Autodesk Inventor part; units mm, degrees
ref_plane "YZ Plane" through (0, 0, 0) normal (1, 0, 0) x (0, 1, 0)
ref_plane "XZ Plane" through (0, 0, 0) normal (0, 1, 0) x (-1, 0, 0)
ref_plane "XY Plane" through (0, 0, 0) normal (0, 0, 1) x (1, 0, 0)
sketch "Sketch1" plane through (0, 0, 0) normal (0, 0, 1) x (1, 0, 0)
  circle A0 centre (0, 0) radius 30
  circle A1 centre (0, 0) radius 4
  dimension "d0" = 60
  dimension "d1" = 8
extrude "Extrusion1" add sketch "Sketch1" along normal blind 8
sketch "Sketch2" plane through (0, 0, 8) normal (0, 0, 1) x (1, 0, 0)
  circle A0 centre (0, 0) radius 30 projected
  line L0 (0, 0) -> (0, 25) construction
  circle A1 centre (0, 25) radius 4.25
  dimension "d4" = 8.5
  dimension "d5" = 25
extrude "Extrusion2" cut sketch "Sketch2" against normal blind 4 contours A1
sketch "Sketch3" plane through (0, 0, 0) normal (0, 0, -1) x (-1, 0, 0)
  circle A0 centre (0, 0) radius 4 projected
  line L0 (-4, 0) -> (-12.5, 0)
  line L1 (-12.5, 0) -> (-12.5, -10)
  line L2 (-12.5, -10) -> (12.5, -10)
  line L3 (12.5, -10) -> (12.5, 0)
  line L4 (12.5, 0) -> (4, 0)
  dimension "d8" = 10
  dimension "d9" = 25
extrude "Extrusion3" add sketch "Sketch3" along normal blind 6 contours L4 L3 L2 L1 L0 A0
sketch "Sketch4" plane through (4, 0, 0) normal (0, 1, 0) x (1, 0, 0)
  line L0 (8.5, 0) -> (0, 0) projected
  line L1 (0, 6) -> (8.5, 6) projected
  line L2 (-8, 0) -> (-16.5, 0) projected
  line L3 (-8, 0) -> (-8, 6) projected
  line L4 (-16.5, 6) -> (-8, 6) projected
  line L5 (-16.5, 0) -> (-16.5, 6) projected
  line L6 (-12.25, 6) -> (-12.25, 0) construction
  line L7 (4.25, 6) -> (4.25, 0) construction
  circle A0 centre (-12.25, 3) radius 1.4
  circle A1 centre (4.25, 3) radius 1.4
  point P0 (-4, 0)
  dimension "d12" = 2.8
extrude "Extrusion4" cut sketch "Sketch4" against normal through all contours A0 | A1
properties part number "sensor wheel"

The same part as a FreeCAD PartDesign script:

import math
import FreeCAD as App
import Part
import Sketcher
Q = App.Units.Quantity

doc = App.newDocument("Part")
body = doc.addObject("PartDesign::Body", "Body")

# Sketch on XY plane
sketch1 = doc.addObject("Sketcher::SketchObject", "Sketch")
body.addObject(sketch1)
sketch1.AttachmentSupport = (doc.XY_Plane, [""])
sketch1.MapMode = "FlatFace"
sketch1.addGeometry([
    Part.Circle(App.Vector(0, 0, 0), App.Vector(0, 0, 1), 30),
    Part.Circle(App.Vector(0, 0, 0), App.Vector(0, 0, 1), 4),
], False)
sketch1.addConstraint([
    Sketcher.Constraint("Coincident", 0, 3, -1, 1),
    Sketcher.Constraint("Coincident", 1, 3, -1, 1),
    Sketcher.Constraint("Diameter", 0, Q("60 mm")),
    Sketcher.Constraint("Diameter", 1, Q("8 mm")),
])
pad1 = doc.addObject("PartDesign::Pad", "Pad")
body.addObject(pad1)
pad1.Profile = sketch1
pad1.Length = 8

# Sketch on XY plane
sketch2 = doc.addObject("Sketcher::SketchObject", "Sketch001")
body.addObject(sketch2)
sketch2.AttachmentSupport = (doc.XY_Plane, [""])
sketch2.MapMode = "FlatFace"
sketch2.AttachmentOffset = App.Placement(App.Vector(0, 0, 8), App.Rotation())
sketch2.addGeometry(Part.Circle(App.Vector(0, 25, 0), App.Vector(0, 0, 1), 4.2), False)
sketch2.addConstraint([
    Sketcher.Constraint("PointOnObject", 0, 3, -2),
    Sketcher.Constraint("Diameter", 0, Q("8.5 mm")),
    Sketcher.Constraint("DistanceY", -1, 1, 0, 3, Q("25 mm")),
])
pocket1 = doc.addObject("PartDesign::Pocket", "Pocket")
body.addObject(pocket1)
pocket1.Profile = sketch2
pocket1.Length = 4

# Sketch on XY plane
sketch3 = doc.addObject("Sketcher::SketchObject", "Sketch002")
body.addObject(sketch3)
sketch3.AttachmentSupport = (doc.XY_Plane, [""])
sketch3.MapMode = "FlatFace"
sketch3.addGeometry([
    Part.LineSegment(App.Vector(-12.5, 0, 0), App.Vector(-4, 0, 0)),  # 0
    Part.ArcOfCircle(Part.Circle(App.Vector(0, 0, 0), App.Vector(0, 0, 1), 4), math.radians(180), math.radians(360)),  # 1
    Part.LineSegment(App.Vector(4, 0, 0), App.Vector(12.5, 0, 0)),  # 2
    Part.LineSegment(App.Vector(12.5, 0, 0), App.Vector(12.5, -10, 0)),  # 3
    Part.LineSegment(App.Vector(12.5, -10, 0), App.Vector(-12.5, -10, 0)),  # 4
    Part.LineSegment(App.Vector(-12.5, -10, 0), App.Vector(-12.5, 0, 0)),  # 5
], False)
sketch3.addConstraint([
    Sketcher.Constraint("Coincident", 0, 2, 1, 1),
    Sketcher.Constraint("Coincident", 1, 2, 2, 1),
    Sketcher.Constraint("Coincident", 2, 2, 3, 1),
    Sketcher.Constraint("Coincident", 3, 2, 4, 1),
    Sketcher.Constraint("Coincident", 4, 2, 5, 1),
    Sketcher.Constraint("Coincident", 5, 2, 0, 1),
    Sketcher.Constraint("Horizontal", 0),
    Sketcher.Constraint("Horizontal", 2),
    Sketcher.Constraint("Vertical", 3),
    Sketcher.Constraint("Horizontal", 4),
    Sketcher.Constraint("Vertical", 5),
    Sketcher.Constraint("Coincident", 1, 3, -1, 1),
    Sketcher.Constraint("Symmetric", 2, 2, 5, 2, -1, 1),
    Sketcher.Constraint("PointOnObject", 0, 2, -1),
    Sketcher.Constraint("DistanceX", 4, 2, 4, 1, Q("25 mm")),
    Sketcher.Constraint("DistanceY", 3, 2, 3, 1, Q("10 mm")),
    Sketcher.Constraint("Radius", 1, Q("4 mm")),
])
pad2 = doc.addObject("PartDesign::Pad", "Pad001")
body.addObject(pad2)
pad2.Profile = sketch3
pad2.Length = 6
pad2.Reversed = True

# Sketch on XZ plane
sketch4 = doc.addObject("Sketcher::SketchObject", "Sketch003")
body.addObject(sketch4)
sketch4.AttachmentSupport = (doc.XZ_Plane, [""])
sketch4.MapMode = "FlatFace"
sketch4.addGeometry([
    Part.Circle(App.Vector(-8.2, -3, 0), App.Vector(0, 0, 1), 1.4),
    Part.Circle(App.Vector(8.2, -3, 0), App.Vector(0, 0, 1), 1.4),
], False)
sketch4.addConstraint([
    Sketcher.Constraint("Equal", 0, 1),
    Sketcher.Constraint("Symmetric", 0, 3, 1, 3, -2),
    Sketcher.Constraint("Diameter", 0, Q("2.8 mm")),
    Sketcher.Constraint("DistanceY", 0, 3, -1, 1, Q("3 mm")),
    Sketcher.Constraint("DistanceX", 0, 3, 1, 3, Q("16.5 mm")),
])
pocket2 = doc.addObject("PartDesign::Pocket", "Pocket001")
body.addObject(pocket2)
pocket2.Profile = sketch4
pocket2.Type = "ThroughAll"
pocket2.Reversed = True

doc.recompute()
